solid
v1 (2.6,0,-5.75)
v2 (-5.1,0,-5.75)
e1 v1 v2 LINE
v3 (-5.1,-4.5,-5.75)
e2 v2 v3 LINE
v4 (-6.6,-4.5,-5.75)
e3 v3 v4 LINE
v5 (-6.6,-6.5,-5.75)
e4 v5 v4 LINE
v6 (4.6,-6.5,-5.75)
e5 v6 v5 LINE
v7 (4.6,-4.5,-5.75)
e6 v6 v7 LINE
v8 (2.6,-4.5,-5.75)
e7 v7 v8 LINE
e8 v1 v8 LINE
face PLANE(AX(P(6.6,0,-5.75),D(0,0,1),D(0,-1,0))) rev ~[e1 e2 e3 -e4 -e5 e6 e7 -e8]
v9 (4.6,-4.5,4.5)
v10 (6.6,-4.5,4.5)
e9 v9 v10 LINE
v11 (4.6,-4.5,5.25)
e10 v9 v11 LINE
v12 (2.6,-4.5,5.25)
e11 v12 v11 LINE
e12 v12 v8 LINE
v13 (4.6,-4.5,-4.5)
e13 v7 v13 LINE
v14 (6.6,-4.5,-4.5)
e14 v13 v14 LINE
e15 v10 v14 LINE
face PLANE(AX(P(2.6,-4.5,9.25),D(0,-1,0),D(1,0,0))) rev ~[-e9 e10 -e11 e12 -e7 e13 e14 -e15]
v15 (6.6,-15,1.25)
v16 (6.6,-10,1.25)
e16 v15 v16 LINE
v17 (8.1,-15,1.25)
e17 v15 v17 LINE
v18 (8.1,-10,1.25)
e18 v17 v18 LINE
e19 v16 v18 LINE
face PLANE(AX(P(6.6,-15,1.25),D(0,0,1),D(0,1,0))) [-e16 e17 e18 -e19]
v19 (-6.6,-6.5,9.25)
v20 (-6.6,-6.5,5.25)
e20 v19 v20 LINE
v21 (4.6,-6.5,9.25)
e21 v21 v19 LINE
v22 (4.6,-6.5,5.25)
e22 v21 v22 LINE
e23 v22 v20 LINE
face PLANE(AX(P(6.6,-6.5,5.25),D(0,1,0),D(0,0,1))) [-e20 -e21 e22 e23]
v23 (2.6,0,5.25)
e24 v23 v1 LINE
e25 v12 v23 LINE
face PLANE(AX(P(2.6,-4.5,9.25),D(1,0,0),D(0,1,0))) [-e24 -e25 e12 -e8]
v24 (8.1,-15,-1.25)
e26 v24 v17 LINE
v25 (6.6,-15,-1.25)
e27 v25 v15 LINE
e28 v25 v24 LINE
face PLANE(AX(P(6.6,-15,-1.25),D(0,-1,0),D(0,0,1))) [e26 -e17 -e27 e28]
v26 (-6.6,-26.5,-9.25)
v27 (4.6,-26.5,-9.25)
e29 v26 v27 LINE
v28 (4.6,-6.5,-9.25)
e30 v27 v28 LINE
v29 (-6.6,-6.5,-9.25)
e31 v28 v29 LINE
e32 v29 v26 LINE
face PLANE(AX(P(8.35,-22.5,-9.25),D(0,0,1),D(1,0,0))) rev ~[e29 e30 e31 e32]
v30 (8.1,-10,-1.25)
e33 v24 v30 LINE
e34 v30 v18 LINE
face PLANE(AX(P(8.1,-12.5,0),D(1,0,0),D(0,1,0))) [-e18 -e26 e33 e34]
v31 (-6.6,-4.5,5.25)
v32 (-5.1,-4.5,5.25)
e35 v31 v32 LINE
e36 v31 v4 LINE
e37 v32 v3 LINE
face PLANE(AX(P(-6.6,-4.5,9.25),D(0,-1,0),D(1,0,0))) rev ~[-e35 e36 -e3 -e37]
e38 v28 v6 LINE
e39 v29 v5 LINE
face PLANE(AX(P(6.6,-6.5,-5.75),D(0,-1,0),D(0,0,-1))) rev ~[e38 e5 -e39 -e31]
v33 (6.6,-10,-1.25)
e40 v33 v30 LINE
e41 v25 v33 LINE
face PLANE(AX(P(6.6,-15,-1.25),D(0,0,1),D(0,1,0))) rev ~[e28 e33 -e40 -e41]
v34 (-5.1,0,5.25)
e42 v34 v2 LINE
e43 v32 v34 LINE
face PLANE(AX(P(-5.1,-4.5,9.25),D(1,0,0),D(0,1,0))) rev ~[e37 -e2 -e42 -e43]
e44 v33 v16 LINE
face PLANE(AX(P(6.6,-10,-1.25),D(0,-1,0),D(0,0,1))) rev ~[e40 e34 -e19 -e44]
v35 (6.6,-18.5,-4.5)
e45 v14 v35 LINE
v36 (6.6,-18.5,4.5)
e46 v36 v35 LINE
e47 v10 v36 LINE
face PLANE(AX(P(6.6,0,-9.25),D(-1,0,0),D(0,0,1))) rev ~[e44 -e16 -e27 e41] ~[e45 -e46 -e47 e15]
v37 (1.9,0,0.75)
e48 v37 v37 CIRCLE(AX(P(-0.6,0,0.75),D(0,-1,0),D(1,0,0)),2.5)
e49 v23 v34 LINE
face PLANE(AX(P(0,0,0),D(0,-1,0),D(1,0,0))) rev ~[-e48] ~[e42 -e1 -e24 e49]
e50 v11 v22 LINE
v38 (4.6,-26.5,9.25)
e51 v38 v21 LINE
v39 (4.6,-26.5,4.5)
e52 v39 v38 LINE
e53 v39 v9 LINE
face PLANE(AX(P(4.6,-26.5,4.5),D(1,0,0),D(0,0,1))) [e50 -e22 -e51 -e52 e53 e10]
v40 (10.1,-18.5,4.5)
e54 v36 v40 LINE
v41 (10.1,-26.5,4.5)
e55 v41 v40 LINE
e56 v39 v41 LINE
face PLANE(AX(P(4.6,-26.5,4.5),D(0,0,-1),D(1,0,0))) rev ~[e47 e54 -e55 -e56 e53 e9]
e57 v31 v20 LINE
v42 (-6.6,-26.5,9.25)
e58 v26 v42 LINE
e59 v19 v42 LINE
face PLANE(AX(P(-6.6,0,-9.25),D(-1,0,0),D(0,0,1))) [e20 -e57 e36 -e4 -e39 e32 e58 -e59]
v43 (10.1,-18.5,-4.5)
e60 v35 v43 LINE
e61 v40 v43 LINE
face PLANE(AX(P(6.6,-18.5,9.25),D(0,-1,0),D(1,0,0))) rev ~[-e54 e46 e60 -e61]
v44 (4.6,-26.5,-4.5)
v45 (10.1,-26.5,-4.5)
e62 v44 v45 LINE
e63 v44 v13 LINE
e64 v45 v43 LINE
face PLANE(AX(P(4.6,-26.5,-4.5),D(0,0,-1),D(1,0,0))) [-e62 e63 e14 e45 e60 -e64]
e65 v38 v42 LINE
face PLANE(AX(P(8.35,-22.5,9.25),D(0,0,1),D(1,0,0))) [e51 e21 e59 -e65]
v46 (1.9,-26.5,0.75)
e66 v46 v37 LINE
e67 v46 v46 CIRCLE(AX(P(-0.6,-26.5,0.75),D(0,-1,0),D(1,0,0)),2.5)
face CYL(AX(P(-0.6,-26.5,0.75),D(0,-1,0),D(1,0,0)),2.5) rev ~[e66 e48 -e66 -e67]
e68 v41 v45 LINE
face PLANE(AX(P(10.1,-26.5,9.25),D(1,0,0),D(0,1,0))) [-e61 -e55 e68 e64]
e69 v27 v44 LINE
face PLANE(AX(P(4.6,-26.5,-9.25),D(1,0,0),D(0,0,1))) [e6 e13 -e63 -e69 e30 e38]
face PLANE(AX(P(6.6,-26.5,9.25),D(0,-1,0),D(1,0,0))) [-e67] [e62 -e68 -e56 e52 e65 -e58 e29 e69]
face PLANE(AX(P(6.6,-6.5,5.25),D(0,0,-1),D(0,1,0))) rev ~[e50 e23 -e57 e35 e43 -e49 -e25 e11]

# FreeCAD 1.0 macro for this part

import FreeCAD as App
import Part
import Sketcher

V = App.Vector
Q = App.Units.Quantity


def add_polygon(sketch, points):
    """Adds a closed chain of lines whose ends are joined by coincident constraints."""
    first, n = sketch.GeometryCount, len(points)
    for a, b in zip(points, points[1:] + points[:1]):
        sketch.addGeometry(Part.LineSegment(App.Vector(*a, 0), App.Vector(*b, 0)), False)
    for i in range(n):
        sketch.addConstraint(Sketcher.Constraint("Coincident", first + i, 2, first + (i + 1) % n, 1))

doc = App.newDocument("Part")
body = doc.addObject("PartDesign::Body", "Body")

# Sketch on XZ plane
sketch1 = body.newObject("Sketcher::SketchObject", "Sketch")
sketch1.AttachmentSupport = (doc.getObject("XZ_Plane"), [""])
sketch1.MapMode = "FlatFace"
add_polygon(sketch1, [(-7, 9), (-7, -9), (7, -9), (7, 9)])  # lines 0-3
sketch1.addConstraint([
    Sketcher.Constraint("Vertical", 0),
    Sketcher.Constraint("Horizontal", 1),
    Sketcher.Constraint("Vertical", 2),
    Sketcher.Constraint("Horizontal", 3),
    Sketcher.Constraint("Symmetric", 0, 2, 2, 2, -1, 1),
    Sketcher.Constraint("DistanceX", 1, 1, 1, 2, Q("13.2 mm")),
    Sketcher.Constraint("DistanceY", 0, 2, 0, 1, Q("18.5 mm")),
])
pad1 = body.newObject("PartDesign::Pad", "Pad")
pad1.Profile = sketch1
pad1.Length = 26.5

# Sketch on XY plane
sketch2 = body.newObject("Sketcher::SketchObject", "Sketch001")
sketch2.AttachmentSupport = (doc.getObject("XY_Plane"), [""])
sketch2.MapMode = "FlatFace"
sketch2.AttachmentOffset = App.Placement(V(0, 0, 9.25), App.Rotation())
add_polygon(sketch2, [(2.6, 0), (2.6, -4.5), (6.6, -4.5), (6.6, 0)])  # lines 0-3
add_polygon(sketch2, [(-6.6, 0), (-6.6, -4.5), (-5.1, -4.5), (-5.1, 0)])  # lines 4-7
sketch2.addConstraint([
    Sketcher.Constraint("Vertical", 0),
    Sketcher.Constraint("Horizontal", 1),
    Sketcher.Constraint("Vertical", 2),
    Sketcher.Constraint("Horizontal", 3),
    Sketcher.Constraint("Vertical", 4),
    Sketcher.Constraint("Horizontal", 5),
    Sketcher.Constraint("Vertical", 6),
    Sketcher.Constraint("Horizontal", 7),
    Sketcher.Constraint("Symmetric", 2, 2, 7, 2, -1, 1),
    Sketcher.Constraint("PointOnObject", 2, 2, -1),
    Sketcher.Constraint("Horizontal", 1, 2, 4, 2),
    Sketcher.Constraint("DistanceX", 1, 1, 1, 2, Q("4 mm")),
    Sketcher.Constraint("DistanceX", 5, 1, 5, 2, Q("1.5 mm")),
    Sketcher.Constraint("DistanceY", 0, 2, 0, 1, Q("4.5 mm")),
    Sketcher.Constraint("DistanceX", -1, 1, 0, 2, Q("2.6 mm")),
])
pocket1 = body.newObject("PartDesign::Pocket", "Pocket")
pocket1.Profile = sketch2
pocket1.Type = "ThroughAll"

# Sketch on YZ plane
sketch3 = body.newObject("Sketcher::SketchObject", "Sketch002")
sketch3.AttachmentSupport = (doc.getObject("YZ_Plane"), [""])
sketch3.MapMode = "FlatFace"
sketch3.AttachmentOffset = App.Placement(V(0, 0, 6.6), App.Rotation())
add_polygon(sketch3, [(-15, 1.2), (-15, -1.2), (-10, -1.2), (-10, 1.2)])  # lines 0-3
sketch3.addConstraint([
    Sketcher.Constraint("Vertical", 0),
    Sketcher.Constraint("Horizontal", 1),
    Sketcher.Constraint("Vertical", 2),
    Sketcher.Constraint("Horizontal", 3),
    Sketcher.Constraint("DistanceX", 1, 1, 1, 2, Q("5 mm")),
    Sketcher.Constraint("DistanceY", 0, 2, 0, 1, Q("2.5 mm")),
    Sketcher.Constraint("DistanceX", 0, 2, -1, 1, Q("15 mm")),
    Sketcher.Constraint("DistanceY", 0, 2, -1, 1, Q("1.25 mm")),
])
pad2 = body.newObject("PartDesign::Pad", "Pad001")
pad2.Profile = sketch3
pad2.Length = 1.5

# Sketch on YZ plane
sketch4 = body.newObject("Sketcher::SketchObject", "Sketch003")
sketch4.AttachmentSupport = (doc.getObject("YZ_Plane"), [""])
sketch4.MapMode = "FlatFace"
sketch4.AttachmentOffset = App.Placement(V(0, 0, 6.6), App.Rotation())
add_polygon(sketch4, [(0, -9.2), (0, -5.8), (-6.5, -5.8), (-6.5, -9.2)])  # lines 0-3
add_polygon(sketch4, [(-6.5, 9.2), (-6.5, 5.2), (0, 5.2), (0, 9.2)])  # lines 4-7
sketch4.addConstraint([
    Sketcher.Constraint("Vertical", 0),
    Sketcher.Constraint("Horizontal", 1),
    Sketcher.Constraint("Vertical", 2),
    Sketcher.Constraint("Horizontal", 3),
    Sketcher.Constraint("Vertical", 4),
    Sketcher.Constraint("Horizontal", 5),
    Sketcher.Constraint("Vertical", 6),
    Sketcher.Constraint("Horizontal", 7),
    Sketcher.Constraint("Symmetric", 3, 2, 6, 2, -1, 1),
    Sketcher.Constraint("PointOnObject", 0, 2, -2),
    Sketcher.Constraint("Vertical", 2, 2, 4, 2),
    Sketcher.Constraint("DistanceY", 4, 2, 4, 1, Q("4 mm")),
    Sketcher.Constraint("DistanceX", 1, 2, 1, 1, Q("6.5 mm")),
    Sketcher.Constraint("DistanceY", 0, 1, 0, 2, Q("3.5 mm")),
    Sketcher.Constraint("DistanceY", 1, 2, 4, 2, Q("11 mm")),
])
pocket2 = body.newObject("PartDesign::Pocket", "Pocket001")
pocket2.Profile = sketch4
pocket2.Type = "ThroughAll"

# Sketch on XY plane
sketch5 = body.newObject("Sketcher::SketchObject", "Sketch004")
sketch5.AttachmentSupport = (doc.getObject("XY_Plane"), [""])
sketch5.MapMode = "FlatFace"
sketch5.AttachmentOffset = App.Placement(V(0, 0, 9.25), App.Rotation())
add_polygon(sketch5, [(6.6, -18.5), (6.6, -26.5), (10.1, -26.5), (10.1, -18.5)])  # lines 0-3
sketch5.addConstraint([
    Sketcher.Constraint("Vertical", 0),
    Sketcher.Constraint("Horizontal", 1),
    Sketcher.Constraint("Vertical", 2),
    Sketcher.Constraint("Horizontal", 3),
    Sketcher.Constraint("DistanceY", 0, 2, 0, 1, Q("8 mm")),
    Sketcher.Constraint("DistanceX", 1, 1, 1, 2, Q("3.5 mm")),
    Sketcher.Constraint("DistanceX", -1, 1, 0, 2, Q("6.6 mm")),
    Sketcher.Constraint("DistanceY", 0, 2, -1, 1, Q("26.5 mm")),
])
pad3 = body.newObject("PartDesign::Pad", "Pad002")
pad3.Profile = sketch5
pad3.Length = 18.5
pad3.Reversed = True

# Sketch on XZ plane
sketch6 = body.newObject("Sketcher::SketchObject", "Sketch005")
sketch6.AttachmentSupport = (doc.getObject("XZ_Plane"), [""])
sketch6.MapMode = "FlatFace"
sketch6.AttachmentOffset = App.Placement(V(0, 0, 26.5), App.Rotation())
sketch6.addGeometry(Part.Circle(V(-0.6, 0.8, 0), V(0, 0, 1), 2.5), False)
sketch6.addConstraint([
    Sketcher.Constraint("Diameter", 0, Q("5 mm")),
    Sketcher.Constraint("DistanceX", 0, 3, -1, 1, Q("0.6 mm")),
    Sketcher.Constraint("DistanceY", -1, 1, 0, 3, Q("0.75 mm")),
])
pocket3 = body.newObject("PartDesign::Pocket", "Pocket002")
pocket3.Profile = sketch6
pocket3.Type = "ThroughAll"

# Sketch on XZ plane
sketch7 = body.newObject("Sketcher::SketchObject", "Sketch006")
sketch7.AttachmentSupport = (doc.getObject("XZ_Plane"), [""])
sketch7.MapMode = "FlatFace"
sketch7.AttachmentOffset = App.Placement(V(0, 0, 26.5), App.Rotation())
add_polygon(sketch7, [(4.6, 9.2), (4.6, 4.5), (10.1, 4.5), (10.1, 9.2)])  # lines 0-3
add_polygon(sketch7, [(4.6, -4.5), (4.6, -9.2), (10.1, -9.2), (10.1, -4.5)])  # lines 4-7
sketch7.addConstraint([
    Sketcher.Constraint("Vertical", 0),
    Sketcher.Constraint("Horizontal", 1),
    Sketcher.Constraint("Vertical", 2),
    Sketcher.Constraint("Horizontal", 3),
    Sketcher.Constraint("Vertical", 4),
    Sketcher.Constraint("Horizontal", 5),
    Sketcher.Constraint("Vertical", 6),
    Sketcher.Constraint("Horizontal", 7),
    Sketcher.Constraint("Symmetric", 3, 2, 4, 2, -1),
    Sketcher.Constraint("Symmetric", 1, 2, 6, 2, -1),
    Sketcher.Constraint("DistanceX", 1, 1, 1, 2, Q("5.5 mm")),
    Sketcher.Constraint("DistanceY", 6, 2, 1, 2, Q("9 mm")),
    Sketcher.Constraint("DistanceY", 0, 2, 0, 1, Q("4.75 mm")),
    Sketcher.Constraint("DistanceX", -1, 1, 0, 2, Q("4.6 mm")),
])
pocket4 = body.newObject("PartDesign::Pocket", "Pocket003")
pocket4.Profile = sketch7
pocket4.Type = "ThroughAll"

doc.recompute()
